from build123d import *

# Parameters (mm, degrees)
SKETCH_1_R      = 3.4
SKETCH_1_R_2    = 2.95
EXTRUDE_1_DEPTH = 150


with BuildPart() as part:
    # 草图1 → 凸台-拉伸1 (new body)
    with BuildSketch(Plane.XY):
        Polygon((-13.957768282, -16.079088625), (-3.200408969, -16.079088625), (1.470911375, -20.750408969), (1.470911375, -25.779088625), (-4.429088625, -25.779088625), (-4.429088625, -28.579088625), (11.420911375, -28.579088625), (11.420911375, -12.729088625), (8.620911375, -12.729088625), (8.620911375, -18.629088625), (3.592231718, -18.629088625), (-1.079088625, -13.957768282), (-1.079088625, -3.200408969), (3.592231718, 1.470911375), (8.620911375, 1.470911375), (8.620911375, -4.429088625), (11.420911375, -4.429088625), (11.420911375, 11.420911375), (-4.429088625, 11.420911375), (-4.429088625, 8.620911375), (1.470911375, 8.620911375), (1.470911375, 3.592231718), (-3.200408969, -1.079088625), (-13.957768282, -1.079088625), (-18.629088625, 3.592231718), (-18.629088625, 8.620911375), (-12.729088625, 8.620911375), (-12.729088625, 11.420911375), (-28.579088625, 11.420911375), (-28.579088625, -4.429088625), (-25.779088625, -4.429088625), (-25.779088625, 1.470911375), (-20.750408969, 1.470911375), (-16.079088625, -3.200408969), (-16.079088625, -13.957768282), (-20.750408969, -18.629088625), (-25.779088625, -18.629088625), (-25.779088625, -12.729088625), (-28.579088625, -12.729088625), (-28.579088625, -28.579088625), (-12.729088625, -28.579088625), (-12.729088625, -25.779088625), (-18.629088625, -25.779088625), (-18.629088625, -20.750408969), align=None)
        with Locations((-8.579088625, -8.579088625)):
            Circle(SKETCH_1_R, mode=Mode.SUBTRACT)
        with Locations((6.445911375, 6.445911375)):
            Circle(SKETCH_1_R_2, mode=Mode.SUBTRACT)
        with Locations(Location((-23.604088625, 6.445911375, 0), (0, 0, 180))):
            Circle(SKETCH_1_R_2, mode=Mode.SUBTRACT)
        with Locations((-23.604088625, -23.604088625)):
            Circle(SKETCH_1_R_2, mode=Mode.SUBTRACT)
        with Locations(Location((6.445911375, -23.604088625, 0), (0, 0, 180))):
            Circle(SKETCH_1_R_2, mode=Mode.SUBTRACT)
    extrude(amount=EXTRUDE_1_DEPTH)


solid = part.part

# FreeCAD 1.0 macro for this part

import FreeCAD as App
import Part
import Sketcher
from FreeCAD import Vector


def add_polygon(sketch, points):
    """Adds a closed chain of lines whose ends are joined by coincident constraints."""
    first, n = sketch.GeometryCount, len(points)
    for a, b in zip(points, points[1:] + points[:1]):
        sketch.addGeometry(Part.LineSegment(App.Vector(*a, 0), App.Vector(*b, 0)), False)
    for i in range(n):
        sketch.addConstraint(Sketcher.Constraint("Coincident", first + i, 2, first + (i + 1) % n, 1))

doc = App.newDocument("Part")
body = doc.addObject("PartDesign::Body", "Body")

# Sketch on XY plane
sketch1 = doc.addObject("Sketcher::SketchObject", "Sketch")
body.addObject(sketch1)
sketch1.AttachmentSupport = (doc.XY_Plane, [""])
sketch1.MapMode = "FlatFace"
add_polygon(sketch1, [(-14, -16.1), (-3.2, -16.1), (1.5, -20.8), (1.5, -25.8), (-4.4, -25.8), (-4.4, -28.6), (11.4, -28.6), (11.4, -12.7), (8.6, -12.7), (8.6, -18.6), (3.6, -18.6), (-1.1, -14), (-1.1, -3.2), (3.6, 1.5), (8.6, 1.5), (8.6, -4.4), (11.4, -4.4), (11.4, 11.4), (-4.4, 11.4), (-4.4, 8.6), (1.5, 8.6), (1.5, 3.6), (-3.2, -1.1), (-14, -1.1), (-18.6, 3.6), (-18.6, 8.6), (-12.7, 8.6), (-12.7, 11.4), (-28.6, 11.4), (-28.6, -4.4), (-25.8, -4.4), (-25.8, 1.5), (-20.8, 1.5), (-16.1, -3.2), (-16.1, -14), (-20.8, -18.6), (-25.8, -18.6), (-25.8, -12.7), (-28.6, -12.7), (-28.6, -28.6), (-12.7, -28.6), (-12.7, -25.8), (-18.6, -25.8), (-18.6, -20.8)])  # lines 0-43
sketch1.addGeometry(Part.Circle(Vector(-23.6, -23.6, 0), Vector(0, 0, 1), 3), False)  # 44
sketch1.addGeometry(Part.Circle(Vector(6.4, -23.6, 0), Vector(0, 0, 1), 3), False)  # 45
sketch1.addGeometry(Part.Circle(Vector(-8.6, -8.6, 0), Vector(0, 0, 1), 3.4), False)  # 46
sketch1.addGeometry(Part.Circle(Vector(-23.6, 6.4, 0), Vector(0, 0, 1), 3), False)  # 47
sketch1.addGeometry(Part.Circle(Vector(6.4, 6.4, 0), Vector(0, 0, 1), 3), False)  # 48
sketch1.addConstraint([
    Sketcher.Constraint("Horizontal", 0),
    Sketcher.Constraint("Vertical", 2),
    Sketcher.Constraint("Horizontal", 3),
    Sketcher.Constraint("Vertical", 4),
    Sketcher.Constraint("Horizontal", 5),
    Sketcher.Constraint("Vertical", 6),
    Sketcher.Constraint("Horizontal", 7),
    Sketcher.Constraint("Vertical", 8),
    Sketcher.Constraint("Horizontal", 9),
    Sketcher.Constraint("Vertical", 11),
    Sketcher.Constraint("Horizontal", 13),
    Sketcher.Constraint("Vertical", 14),
    Sketcher.Constraint("Horizontal", 15),
    Sketcher.Constraint("Vertical", 16),
    Sketcher.Constraint("Horizontal", 17),
    Sketcher.Constraint("Vertical", 18),
    Sketcher.Constraint("Horizontal", 19),
    Sketcher.Constraint("Vertical", 20),
    Sketcher.Constraint("Horizontal", 22),
    Sketcher.Constraint("Vertical", 24),
    Sketcher.Constraint("Horizontal", 25),
    Sketcher.Constraint("Vertical", 26),
    Sketcher.Constraint("Horizontal", 27),
    Sketcher.Constraint("Vertical", 28),
    Sketcher.Constraint("Horizontal", 29),
    Sketcher.Constraint("Vertical", 30),
    Sketcher.Constraint("Horizontal", 31),
    Sketcher.Constraint("Vertical", 33),
    Sketcher.Constraint("Horizontal", 35),
    Sketcher.Constraint("Vertical", 36),
    Sketcher.Constraint("Horizontal", 37),
    Sketcher.Constraint("Vertical", 38),
    Sketcher.Constraint("Horizontal", 39),
    Sketcher.Constraint("Vertical", 40),
    Sketcher.Constraint("Horizontal", 41),
    Sketcher.Constraint("Vertical", 42),
    Sketcher.Constraint("Equal", 44, 45),
    Sketcher.Constraint("Equal", 45, 47),
    Sketcher.Constraint("Equal", 47, 48),
    Sketcher.Constraint("Parallel", 1, 10),
    Sketcher.Constraint("Perpendicular", 10, 12),
    Sketcher.Constraint("Parallel", 12, 21),
    Sketcher.Constraint("Perpendicular", 21, 23),
    Sketcher.Constraint("Parallel", 23, 32),
    Sketcher.Constraint("Perpendicular", 32, 34),
    Sketcher.Constraint("Parallel", 34, 43),
    Sketcher.Constraint("Horizontal", 44, 3, 45, 3),
    Sketcher.Constraint("Horizontal", 47, 3, 48, 3),
    Sketcher.Constraint("Horizontal", 20, 2, 23, 2),
    Sketcher.Constraint("Horizontal", 19, 2, 24, 2),
    Sketcher.Constraint("Horizontal", 17, 2, 26, 2),
    Sketcher.Constraint("Horizontal", 15, 2, 28, 2),
    Sketcher.Constraint("Horizontal", 13, 2, 30, 2),
    Sketcher.Constraint("Horizontal", 11, 2, 32, 2),
    Sketcher.Constraint("Horizontal", 10, 2, 33, 2),
    Sketcher.Constraint("Horizontal", 9, 2, 34, 2),
    Sketcher.Constraint("Horizontal", 7, 2, 36, 2),
    Sketcher.Constraint("Horizontal", 5, 2, 38, 2),
    Sketcher.Constraint("Horizontal", 3, 2, 40, 2),
    Sketcher.Constraint("Horizontal", 1, 2, 42, 2),
    Sketcher.Constraint("Vertical", 44, 3, 47, 3),
    Sketcher.Constraint("Vertical", 45, 3, 48, 3),
    Sketcher.Constraint("Vertical", 9, 2, 12, 2),
    Sketcher.Constraint("Vertical", 8, 2, 13, 2),
    Sketcher.Constraint("Vertical", 6, 2, 15, 2),
    Sketcher.Constraint("Vertical", 4, 2, 17, 2),
    Sketcher.Constraint("Vertical", 2, 2, 19, 2),
    Sketcher.Constraint("Vertical", 0, 2, 21, 2),
    Sketcher.Constraint("Vertical", 31, 2, 34, 2),
    Sketcher.Constraint("Vertical", 30, 2, 35, 2),
    Sketcher.Constraint("Vertical", 28, 2, 37, 2),
    Sketcher.Constraint("Vertical", 26, 2, 39, 2),
    Sketcher.Constraint("Vertical", 24, 2, 41, 2),
    Sketcher.Constraint("Equal", 19, 25),
    Sketcher.Constraint("Equal", 17, 27),
    Sketcher.Constraint("Equal", 15, 29),
    Sketcher.Constraint("Equal", 13, 31),
    Sketcher.Constraint("Equal", 35, 2),
    Sketcher.Constraint("Equal", 37, 4),
    Sketcher.Constraint("Equal", 39, 6),
    Sketcher.Constraint("Equal", 41, 8),
    Sketcher.Constraint("Equal", 22, 11),
    Sketcher.Constraint("Equal", 8, 14),
    Sketcher.Constraint("Equal", 6, 16),
    Sketcher.Constraint("Equal", 4, 18),
    Sketcher.Constraint("Equal", 2, 20),
    Sketcher.Constraint("Equal", 1, 10),
    Sketcher.Constraint("Diameter", 44, 5.9),
    Sketcher.Constraint("Diameter", 46, 6.8),
    Sketcher.Constraint("DistanceX", 3, 2, 3, 1, 5.9),
    Sketcher.Constraint("DistanceX", 7, 2, 7, 1, 2.8),
    Sketcher.Constraint("DistanceX", 5, 1, 5, 2, 15.85),
    Sketcher.Constraint("DistanceY", 0, 2, 46, 3, 7.5),
    Sketcher.Constraint("DistanceY", 2, 2, 0, 2, 9.7),
    Sketcher.Constraint("DistanceX", 46, 3, 10, 2, 7.5),
    Sketcher.Constraint("DistanceY", 7, 2, 12, 2, 14.2),
    Sketcher.Constraint("DistanceX", 44, 3, 45, 3, 30.05),
    Sketcher.Constraint("DistanceY", 44, 3, 47, 3, 30.05),
    Sketcher.Constraint("DistanceX", 44, 3, 46, 3, 15.025),
    Sketcher.Constraint("DistanceY", 44, 3, 46, 3, 15.025),
    Sketcher.Constraint("DistanceX", 0, 1, 0, 2, 10.757359),
    Sketcher.Constraint("DistanceX", 44, 3, -1, 1, 23.604089),
    Sketcher.Constraint("DistanceY", 44, 3, -1, 1, 23.604089),
])
pad1 = doc.addObject("PartDesign::Pad", "Pad")
body.addObject(pad1)
pad1.Profile = sketch1
pad1.Length = 150

doc.recompute()
